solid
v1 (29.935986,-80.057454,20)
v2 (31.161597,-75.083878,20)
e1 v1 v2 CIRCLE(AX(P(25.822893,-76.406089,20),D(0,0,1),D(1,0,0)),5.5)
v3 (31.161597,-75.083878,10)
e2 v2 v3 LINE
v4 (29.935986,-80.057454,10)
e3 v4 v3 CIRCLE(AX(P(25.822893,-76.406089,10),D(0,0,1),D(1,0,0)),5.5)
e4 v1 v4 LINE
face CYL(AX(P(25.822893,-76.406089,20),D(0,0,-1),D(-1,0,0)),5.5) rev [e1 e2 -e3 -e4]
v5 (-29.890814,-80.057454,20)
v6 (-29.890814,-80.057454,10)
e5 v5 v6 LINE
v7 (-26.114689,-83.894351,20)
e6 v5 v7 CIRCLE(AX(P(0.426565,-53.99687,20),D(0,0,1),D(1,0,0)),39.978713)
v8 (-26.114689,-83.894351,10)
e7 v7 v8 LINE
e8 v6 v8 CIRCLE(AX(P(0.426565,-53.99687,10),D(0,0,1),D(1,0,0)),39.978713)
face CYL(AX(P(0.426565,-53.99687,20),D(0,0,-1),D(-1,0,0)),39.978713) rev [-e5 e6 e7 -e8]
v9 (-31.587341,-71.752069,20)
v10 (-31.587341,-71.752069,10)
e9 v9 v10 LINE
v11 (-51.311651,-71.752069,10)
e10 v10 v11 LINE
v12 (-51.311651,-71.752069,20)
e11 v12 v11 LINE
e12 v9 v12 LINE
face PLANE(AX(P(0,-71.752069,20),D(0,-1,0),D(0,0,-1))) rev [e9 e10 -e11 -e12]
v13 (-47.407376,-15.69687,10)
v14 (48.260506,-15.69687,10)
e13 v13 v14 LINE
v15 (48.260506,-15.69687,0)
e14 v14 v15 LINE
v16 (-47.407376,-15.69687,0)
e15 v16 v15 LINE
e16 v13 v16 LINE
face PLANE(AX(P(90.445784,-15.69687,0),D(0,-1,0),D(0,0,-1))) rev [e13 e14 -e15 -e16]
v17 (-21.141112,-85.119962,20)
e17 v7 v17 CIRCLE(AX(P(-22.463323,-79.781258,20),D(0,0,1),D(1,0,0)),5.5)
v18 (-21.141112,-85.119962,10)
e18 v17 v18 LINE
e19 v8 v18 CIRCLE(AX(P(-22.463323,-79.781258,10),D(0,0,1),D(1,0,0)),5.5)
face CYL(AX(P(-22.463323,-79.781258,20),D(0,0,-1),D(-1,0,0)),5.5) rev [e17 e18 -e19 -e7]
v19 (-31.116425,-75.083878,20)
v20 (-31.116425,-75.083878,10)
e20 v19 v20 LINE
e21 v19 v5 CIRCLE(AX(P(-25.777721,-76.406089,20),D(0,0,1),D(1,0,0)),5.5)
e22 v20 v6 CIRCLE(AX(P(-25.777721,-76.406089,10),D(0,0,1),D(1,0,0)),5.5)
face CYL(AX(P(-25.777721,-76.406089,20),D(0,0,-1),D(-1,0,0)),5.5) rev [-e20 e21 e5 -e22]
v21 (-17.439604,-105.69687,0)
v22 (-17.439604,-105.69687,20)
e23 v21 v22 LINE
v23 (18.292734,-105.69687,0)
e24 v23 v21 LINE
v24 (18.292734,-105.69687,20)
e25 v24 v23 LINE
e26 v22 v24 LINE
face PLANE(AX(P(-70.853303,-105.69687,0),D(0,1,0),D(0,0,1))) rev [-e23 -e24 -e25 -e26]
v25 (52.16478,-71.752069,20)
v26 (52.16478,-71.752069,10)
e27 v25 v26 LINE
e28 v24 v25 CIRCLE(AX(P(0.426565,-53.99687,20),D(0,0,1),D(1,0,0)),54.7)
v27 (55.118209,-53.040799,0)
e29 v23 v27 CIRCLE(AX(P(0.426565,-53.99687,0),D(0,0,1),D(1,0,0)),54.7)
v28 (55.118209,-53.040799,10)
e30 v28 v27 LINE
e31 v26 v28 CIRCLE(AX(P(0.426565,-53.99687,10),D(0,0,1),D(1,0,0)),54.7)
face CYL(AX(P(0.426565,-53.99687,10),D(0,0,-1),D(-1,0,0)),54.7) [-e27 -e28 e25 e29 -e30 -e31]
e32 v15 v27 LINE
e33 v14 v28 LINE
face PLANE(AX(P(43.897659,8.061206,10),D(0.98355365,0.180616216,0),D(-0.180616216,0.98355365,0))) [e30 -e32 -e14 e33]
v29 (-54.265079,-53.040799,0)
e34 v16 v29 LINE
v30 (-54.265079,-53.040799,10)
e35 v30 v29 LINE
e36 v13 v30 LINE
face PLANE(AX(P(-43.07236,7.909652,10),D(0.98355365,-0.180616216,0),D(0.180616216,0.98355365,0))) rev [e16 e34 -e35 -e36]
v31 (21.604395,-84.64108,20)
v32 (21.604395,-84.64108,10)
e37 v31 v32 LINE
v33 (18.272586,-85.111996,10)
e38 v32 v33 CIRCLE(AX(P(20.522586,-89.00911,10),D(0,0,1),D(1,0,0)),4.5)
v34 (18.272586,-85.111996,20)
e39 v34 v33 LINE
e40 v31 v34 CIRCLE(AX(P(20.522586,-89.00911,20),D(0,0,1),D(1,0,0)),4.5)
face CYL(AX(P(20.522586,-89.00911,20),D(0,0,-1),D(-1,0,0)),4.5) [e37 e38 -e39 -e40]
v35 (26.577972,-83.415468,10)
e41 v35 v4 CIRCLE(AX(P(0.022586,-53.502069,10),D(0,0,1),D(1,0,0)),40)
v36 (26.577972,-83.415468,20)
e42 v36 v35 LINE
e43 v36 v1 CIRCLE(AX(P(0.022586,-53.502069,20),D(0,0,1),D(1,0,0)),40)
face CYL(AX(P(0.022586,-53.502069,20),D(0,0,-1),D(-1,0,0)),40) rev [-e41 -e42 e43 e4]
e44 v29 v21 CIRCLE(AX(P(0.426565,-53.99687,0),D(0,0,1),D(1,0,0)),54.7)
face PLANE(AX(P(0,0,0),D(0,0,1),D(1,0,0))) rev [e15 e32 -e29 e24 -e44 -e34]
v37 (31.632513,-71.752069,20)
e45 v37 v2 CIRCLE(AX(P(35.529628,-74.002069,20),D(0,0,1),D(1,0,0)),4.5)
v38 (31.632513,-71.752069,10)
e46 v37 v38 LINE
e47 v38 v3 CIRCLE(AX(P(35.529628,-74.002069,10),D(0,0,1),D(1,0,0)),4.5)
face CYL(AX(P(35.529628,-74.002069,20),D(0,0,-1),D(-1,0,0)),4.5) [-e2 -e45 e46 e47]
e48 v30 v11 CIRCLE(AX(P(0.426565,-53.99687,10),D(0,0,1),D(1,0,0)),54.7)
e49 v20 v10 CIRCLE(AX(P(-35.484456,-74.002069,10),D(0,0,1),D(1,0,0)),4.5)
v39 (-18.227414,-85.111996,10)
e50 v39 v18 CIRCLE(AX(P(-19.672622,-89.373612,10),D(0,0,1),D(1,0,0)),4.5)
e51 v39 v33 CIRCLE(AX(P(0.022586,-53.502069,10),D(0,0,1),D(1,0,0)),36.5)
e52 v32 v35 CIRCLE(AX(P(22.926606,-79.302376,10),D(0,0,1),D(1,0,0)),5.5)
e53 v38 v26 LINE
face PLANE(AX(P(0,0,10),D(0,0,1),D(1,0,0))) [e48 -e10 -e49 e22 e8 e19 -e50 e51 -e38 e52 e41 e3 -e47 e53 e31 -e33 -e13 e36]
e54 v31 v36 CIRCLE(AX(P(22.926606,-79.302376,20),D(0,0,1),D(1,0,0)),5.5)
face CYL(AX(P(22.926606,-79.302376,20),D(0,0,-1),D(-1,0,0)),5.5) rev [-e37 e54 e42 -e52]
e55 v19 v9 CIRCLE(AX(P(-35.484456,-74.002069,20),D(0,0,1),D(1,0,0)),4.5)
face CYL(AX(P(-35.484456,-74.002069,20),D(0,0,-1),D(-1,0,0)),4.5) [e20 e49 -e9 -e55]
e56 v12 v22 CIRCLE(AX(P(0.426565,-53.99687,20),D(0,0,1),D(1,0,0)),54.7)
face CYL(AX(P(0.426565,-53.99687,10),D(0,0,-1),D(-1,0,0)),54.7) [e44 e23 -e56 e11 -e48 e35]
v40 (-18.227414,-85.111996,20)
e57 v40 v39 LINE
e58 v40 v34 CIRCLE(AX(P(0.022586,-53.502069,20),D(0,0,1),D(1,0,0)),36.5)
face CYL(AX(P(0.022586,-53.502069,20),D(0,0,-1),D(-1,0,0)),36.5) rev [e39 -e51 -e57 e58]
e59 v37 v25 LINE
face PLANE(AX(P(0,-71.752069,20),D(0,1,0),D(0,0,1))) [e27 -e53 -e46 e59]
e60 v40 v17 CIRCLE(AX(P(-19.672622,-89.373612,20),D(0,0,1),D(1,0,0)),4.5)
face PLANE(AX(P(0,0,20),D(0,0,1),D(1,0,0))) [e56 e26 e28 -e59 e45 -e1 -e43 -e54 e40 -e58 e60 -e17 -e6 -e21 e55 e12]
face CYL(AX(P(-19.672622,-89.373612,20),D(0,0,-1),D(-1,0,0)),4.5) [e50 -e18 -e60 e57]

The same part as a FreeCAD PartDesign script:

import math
import FreeCAD as App
import Part
import Sketcher
Q = App.Units.Quantity

doc = App.newDocument("Part")
body = doc.addObject("PartDesign::Body", "Body")

# Sketch on XY plane
sketch1 = body.newObject("Sketcher::SketchObject", "Sketch")
sketch1.AttachmentSupport = (doc.getObject("XY_Plane"), [""])
sketch1.MapMode = "FlatFace"
sketch1.addGeometry(Part.LineSegment(App.Vector(-34, 57, 0), App.Vector(-54, -53, 0)), False)
sketch1.addGeometry(Part.ArcOfCircle(Part.Circle(App.Vector(0, -54, 0), App.Vector(0, 0, 1), 55), math.radians(179), math.radians(361)), False)
sketch1.addGeometry(Part.LineSegment(App.Vector(55, -53, 0), App.Vector(35, 57, 0)), False)
sketch1.addGeometry(Part.ArcOfCircle(Part.Circle(App.Vector(0, 56, 0), App.Vector(0, 0, 1), 34), math.radians(2), math.radians(178)), False)
sketch1.addConstraint(Sketcher.Constraint("Coincident", 0, 2, 1, 1))
sketch1.addConstraint(Sketcher.Constraint("Coincident", 1, 2, 2, 1))
sketch1.addConstraint(Sketcher.Constraint("Coincident", 2, 2, 3, 1))
sketch1.addConstraint(Sketcher.Constraint("Coincident", 3, 2, 0, 1))
sketch1.addConstraint(Sketcher.Constraint("Horizontal", 0, 2, 1, 2))
sketch1.addConstraint(Sketcher.Constraint("Horizontal", 2, 2, 3, 2))
sketch1.addConstraint(Sketcher.Constraint("Vertical", 1, 3, 3, 3))
sketch1.addConstraint(Sketcher.Constraint("Radius", 1, Q("54.7 mm")))
sketch1.addConstraint(Sketcher.Constraint("Radius", 3, Q("34.5 mm")))
sketch1.addConstraint(Sketcher.Constraint("DistanceY", 1, 3, 3, 3, Q("110 mm")))
sketch1.addConstraint(Sketcher.Constraint("DistanceY", 0, 2, -1, 1, Q("53.040799 mm")))
sketch1.addConstraint(Sketcher.Constraint("DistanceY", 1, 3, -1, 1, Q("53.99687 mm")))
sketch1.addConstraint(Sketcher.Constraint("DistanceX", 0, 2, -1, 1, Q("54.265079 mm")))
sketch1.addConstraint(Sketcher.Constraint("DistanceX", 2, 2, 1, 2, Q("20.205781 mm")))
pad1 = body.newObject("PartDesign::Pad", "Pad")
pad1.Profile = sketch1
pad1.Length = 10

# Sketch on XY plane
sketch2 = body.newObject("Sketcher::SketchObject", "Sketch001")
sketch2.AttachmentSupport = (doc.getObject("XY_Plane"), [""])
sketch2.MapMode = "FlatFace"
sketch2.AttachmentOffset = App.Placement(App.Vector(0, 0, 10), App.Rotation())
sketch2.addGeometry(Part.LineSegment(App.Vector(-71, -106, 0), App.Vector(-71, -127, 0)), False)
sketch2.addGeometry(Part.LineSegment(App.Vector(-71, -127, 0), App.Vector(77, -127, 0)), False)
sketch2.addGeometry(Part.LineSegment(App.Vector(77, -127, 0), App.Vector(77, -106, 0)), False)
sketch2.addGeometry(Part.LineSegment(App.Vector(77, -106, 0), App.Vector(-71, -106, 0)), False)
sketch2.addConstraint(Sketcher.Constraint("Coincident", 0, 2, 1, 1))
sketch2.addConstraint(Sketcher.Constraint("Coincident", 1, 2, 2, 1))
sketch2.addConstraint(Sketcher.Constraint("Coincident", 2, 2, 3, 1))
sketch2.addConstraint(Sketcher.Constraint("Coincident", 3, 2, 0, 1))
sketch2.addConstraint(Sketcher.Constraint("Vertical", 0))
sketch2.addConstraint(Sketcher.Constraint("Horizontal", 1))
sketch2.addConstraint(Sketcher.Constraint("Vertical", 2))
sketch2.addConstraint(Sketcher.Constraint("Horizontal", 3))
sketch2.addConstraint(Sketcher.Constraint("DistanceY", 0, 2, 0, 1, Q("21.42769 mm")))
sketch2.addConstraint(Sketcher.Constraint("DistanceX", 1, 1, 1, 2, Q("147.370034 mm")))
sketch2.addConstraint(Sketcher.Constraint("DistanceY", 0, 2, -1, 1, Q("127.124561 mm")))
sketch2.addConstraint(Sketcher.Constraint("DistanceX", -1, 1, 1, 2, Q("76.516731 mm")))
pocket1 = body.newObject("PartDesign::Pocket", "Pocket")
pocket1.Profile = sketch2
pocket1.Length = 10

# Sketch on XY plane
sketch3 = body.newObject("Sketcher::SketchObject", "Sketch002")
sketch3.AttachmentSupport = (doc.getObject("XY_Plane"), [""])
sketch3.MapMode = "FlatFace"
sketch3.AttachmentOffset = App.Placement(App.Vector(0, 0, 10), App.Rotation())
sketch3.addGeometry(Part.LineSegment(App.Vector(-88, 97, 0), App.Vector(-88, -16, 0)), False)
sketch3.addGeometry(Part.LineSegment(App.Vector(-88, -16, 0), App.Vector(90, -16, 0)), False)
sketch3.addGeometry(Part.LineSegment(App.Vector(90, -16, 0), App.Vector(90, 97, 0)), False)
sketch3.addGeometry(Part.LineSegment(App.Vector(90, 97, 0), App.Vector(-88, 97, 0)), False)
sketch3.addConstraint(Sketcher.Constraint("Coincident", 0, 2, 1, 1))
sketch3.addConstraint(Sketcher.Constraint("Coincident", 1, 2, 2, 1))
sketch3.addConstraint(Sketcher.Constraint("Coincident", 2, 2, 3, 1))
sketch3.addConstraint(Sketcher.Constraint("Coincident", 3, 2, 0, 1))
sketch3.addConstraint(Sketcher.Constraint("Vertical", 0))
sketch3.addConstraint(Sketcher.Constraint("Horizontal", 1))
sketch3.addConstraint(Sketcher.Constraint("Vertical", 2))
sketch3.addConstraint(Sketcher.Constraint("Horizontal", 3))
sketch3.addConstraint(Sketcher.Constraint("DistanceY", 0, 2, 0, 1, Q("112.33278 mm")))
sketch3.addConstraint(Sketcher.Constraint("DistanceX", 1, 1, 1, 2, Q("178.746295 mm")))
sketch3.addConstraint(Sketcher.Constraint("DistanceX", 0, 2, -1, 1, Q("88.300512 mm")))
sketch3.addConstraint(Sketcher.Constraint("DistanceY", 0, 2, -1, 1, Q("15.69687 mm")))
pocket2 = body.newObject("PartDesign::Pocket", "Pocket001")
pocket2.Profile = sketch3
pocket2.Length = 10

# Sketch on XY plane
sketch4 = body.newObject("Sketcher::SketchObject", "Sketch003")
sketch4.AttachmentSupport = (doc.getObject("XY_Plane"), [""])
sketch4.MapMode = "FlatFace"
sketch4.AttachmentOffset = App.Placement(App.Vector(0, 0, 10), App.Rotation())
sketch4.addGeometry(Part.ArcOfCircle(Part.Circle(App.Vector(0, -53.5, 0), App.Vector(0, 0, 1), 36.5), math.radians(-90), math.radians(-60)), False)
sketch4.addGeometry(Part.ArcOfCircle(Part.Circle(App.Vector(0, -53.5, 0), App.Vector(0, 0, 1), 36.5), math.radians(-120), math.radians(-90)), False)
sketch4.addGeometry(Part.ArcOfCircle(Part.Circle(App.Vector(-19.7, -89.4, 0), App.Vector(0, 0, 1), 4.5), math.radians(71), math.radians(109)), False)
sketch4.addGeometry(Part.ArcOfCircle(Part.Circle(App.Vector(-22.5, -79.8, 0), App.Vector(0, 0, 1), 5.5), math.radians(-132), math.radians(-76)), False)
sketch4.addGeometry(Part.ArcOfCircle(Part.Circle(App.Vector(0.4, -54, 0), App.Vector(0, 0, 1), 40), math.radians(-139.32), math.radians(-131.6)), False)
sketch4.addGeometry(Part.ArcOfCircle(Part.Circle(App.Vector(-25.8, -76.4, 0), App.Vector(0, 0, 1), 5.5), math.radians(166), math.radians(222)), False)
sketch4.addGeometry(Part.ArcOfCircle(Part.Circle(App.Vector(-35.5, -74, 0), App.Vector(0, 0, 1), 4.5), math.radians(-14), math.radians(30)), False)
sketch4.addGeometry(Part.LineSegment(App.Vector(-31.6, -71.8, 0), App.Vector(-51.3, -71.8, 0)), False)
sketch4.addGeometry(Part.ArcOfCircle(Part.Circle(App.Vector(0.4, -54, 0), App.Vector(0, 0, 1), 54.7), math.radians(-161), math.radians(-109)), False)
sketch4.addGeometry(Part.LineSegment(App.Vector(-17.4, -105.7, 0), App.Vector(18.3, -105.7, 0)), False)
sketch4.addGeometry(Part.ArcOfCircle(Part.Circle(App.Vector(0.4, -54, 0), App.Vector(0, 0, 1), 54.7), math.radians(-71), math.radians(-19)), False)
sketch4.addGeometry(Part.LineSegment(App.Vector(52.2, -71.8, 0), App.Vector(31.6, -71.8, 0)), False)
sketch4.addGeometry(Part.ArcOfCircle(Part.Circle(App.Vector(35.5, -74, 0), App.Vector(0, 0, 1), 4.5), math.radians(150), math.radians(180)), False)
sketch4.addGeometry(Part.ArcOfCircle(Part.Circle(App.Vector(35.5, -74, 0), App.Vector(0, 0, 1), 4.5), math.radians(180), math.radians(193.91)), False)
sketch4.addGeometry(Part.ArcOfCircle(Part.Circle(App.Vector(25.8, -76.4, 0), App.Vector(0, 0, 1), 5.5), math.radians(0), math.radians(13.91)), False)
sketch4.addGeometry(Part.ArcOfCircle(Part.Circle(App.Vector(25.8, -76.4, 0), App.Vector(0, 0, 1), 5.5), math.radians(-42), math.radians(0)), False)
sketch4.addGeometry(Part.ArcOfCircle(Part.Circle(App.Vector(0, -53.5, 0), App.Vector(0, 0, 1), 40), math.radians(-48.4), math.radians(-41.6)), False)
sketch4.addGeometry(Part.ArcOfCircle(Part.Circle(App.Vector(22.9, -79.3, 0), App.Vector(0, 0, 1), 5.5), math.radians(-104), math.radians(-48)), False)
sketch4.addGeometry(Part.ArcOfCircle(Part.Circle(App.Vector(20.5, -89, 0), App.Vector(0, 0, 1), 4.5), math.radians(76), math.radians(120)), False)
sketch4.addConstraint(Sketcher.Constraint("Tangent", 0, 1, 1, 2))
sketch4.addConstraint(Sketcher.Constraint("Coincident", 1, 1, 2, 1))
sketch4.addConstraint(Sketcher.Constraint("Coincident", 2, 2, 3, 2))
sketch4.addConstraint(Sketcher.Constraint("Tangent", 3, 1, 4, 2))
sketch4.addConstraint(Sketcher.Constraint("Coincident", 4, 1, 5, 2))
sketch4.addConstraint(Sketcher.Constraint("Tangent", 5, 1, 6, 1))
sketch4.addConstraint(Sketcher.Constraint("Coincident", 6, 2, 7, 1))
sketch4.addConstraint(Sketcher.Constraint("Coincident", 7, 2, 8, 1))
sketch4.addConstraint(Sketcher.Constraint("Coincident", 8, 2, 9, 1))
sketch4.addConstraint(Sketcher.Constraint("Coincident", 9, 2, 10, 1))
sketch4.addConstraint(Sketcher.Constraint("Coincident", 10, 2, 11, 1))
sketch4.addConstraint(Sketcher.Constraint("Coincident", 11, 2, 12, 1))
sketch4.addConstraint(Sketcher.Constraint("Tangent", 12, 2, 13, 1))
sketch4.addConstraint(Sketcher.Constraint("Tangent", 13, 2, 14, 2))
sketch4.addConstraint(Sketcher.Constraint("Tangent", 14, 1, 15, 2))
sketch4.addConstraint(Sketcher.Constraint("Tangent", 15, 1, 16, 2))
sketch4.addConstraint(Sketcher.Constraint("Tangent", 16, 1, 17, 2))
sketch4.addConstraint(Sketcher.Constraint("Tangent", 17, 1, 18, 1))
sketch4.addConstraint(Sketcher.Constraint("Tangent", 18, 2, 0, 2))
sketch4.addConstraint(Sketcher.Constraint("Horizontal", 7))
sketch4.addConstraint(Sketcher.Constraint("Horizontal", 9))
sketch4.addConstraint(Sketcher.Constraint("Horizontal", 11))
sketch4.addConstraint(Sketcher.Constraint("Coincident", 8, 3, 4, 3))
sketch4.addConstraint(Sketcher.Constraint("Coincident", 10, 3, 4, 3))
sketch4.addConstraint(Sketcher.Constraint("Coincident", 16, 3, 0, 3))
sketch4.addConstraint(Sketcher.Constraint("Equal", 0, 1))
sketch4.addConstraint(Sketcher.Constraint("Equal", 3, 5))
sketch4.addConstraint(Sketcher.Constraint("Equal", 2, 6))
sketch4.addConstraint(Sketcher.Constraint("Equal", 8, 10))
sketch4.addConstraint(Sketcher.Constraint("Equal", 6, 12))
sketch4.addConstraint(Sketcher.Constraint("Equal", 12, 13))
sketch4.addConstraint(Sketcher.Constraint("Equal", 5, 14))
sketch4.addConstraint(Sketcher.Constraint("Equal", 14, 15))
sketch4.addConstraint(Sketcher.Constraint("Equal", 15, 17))
sketch4.addConstraint(Sketcher.Constraint("Equal", 13, 18))
sketch4.addConstraint(Sketcher.Constraint("Horizontal", 6, 3, 12, 3))
sketch4.addConstraint(Sketcher.Constraint("Horizontal", 5, 3, 14, 3))
sketch4.addConstraint(Sketcher.Constraint("Horizontal", 7, 2, 10, 2))
sketch4.addConstraint(Sketcher.Constraint("Horizontal", 13, 3, 12, 2))
sketch4.addConstraint(Sketcher.Constraint("Horizontal", 15, 3, 14, 1))
sketch4.addConstraint(Sketcher.Constraint("Horizontal", 4, 1, 15, 1))
sketch4.addConstraint(Sketcher.Constraint("Horizontal", 1, 1, 18, 2))
sketch4.addConstraint(Sketcher.Constraint("Vertical", 16, 3, 0, 1))
sketch4.addConstraint(Sketcher.Constraint("Radius", 16, Q("40 mm")))
sketch4.addConstraint(Sketcher.Constraint("Radius", 0, Q("36.5 mm")))
sketch4.addConstraint(Sketcher.Constraint("Radius", 2, Q("4.5 mm")))
sketch4.addConstraint(Sketcher.Constraint("Radius", 3, Q("5.5 mm")))
sketch4.addConstraint(Sketcher.Constraint("Radius", 8, Q("54.7 mm")))
sketch4.addConstraint(Sketcher.Constraint("DistanceY", 6, 3, 0, 3, Q("20.5 mm")))
sketch4.addConstraint(Sketcher.Constraint("DistanceX", 0, 1, 18, 3, Q("20.5 mm")))
sketch4.addConstraint(Sketcher.Constraint("DistanceY", 6, 3, 6, 2, Q("2.25 mm")))
sketch4.addConstraint(Sketcher.Constraint("Radius", 4, Q("39.978713 mm")))
sketch4.addConstraint(Sketcher.Constraint("DistanceX", 7, 2, 7, 1, Q("19.724309 mm")))
sketch4.addConstraint(Sketcher.Constraint("DistanceX", 9, 1, 9, 2, Q("35.732338 mm")))
sketch4.addConstraint(Sketcher.Constraint("DistanceX", 3, 3, 2, 3, Q("2.790701 mm")))
sketch4.addConstraint(Sketcher.Constraint("DistanceY", 4, 3, 1, 3, Q("0.494802 mm")))
sketch4.addConstraint(Sketcher.Constraint("DistanceX", 5, 3, 3, 3, Q("3.314398 mm")))
sketch4.addConstraint(Sketcher.Constraint("DistanceX", 2, 2, 1, 1, Q("2.913698 mm")))
sketch4.addConstraint(Sketcher.Constraint("DistanceY", 0, 3, -1, 1, Q("53.502068 mm")))
sketch4.addConstraint(Sketcher.Constraint("DistanceX", 2, 3, -1, 1, Q("19.672622 mm")))
pad2 = body.newObject("PartDesign::Pad", "Pad001")
pad2.Profile = sketch4
pad2.Length = 10

doc.recompute()
